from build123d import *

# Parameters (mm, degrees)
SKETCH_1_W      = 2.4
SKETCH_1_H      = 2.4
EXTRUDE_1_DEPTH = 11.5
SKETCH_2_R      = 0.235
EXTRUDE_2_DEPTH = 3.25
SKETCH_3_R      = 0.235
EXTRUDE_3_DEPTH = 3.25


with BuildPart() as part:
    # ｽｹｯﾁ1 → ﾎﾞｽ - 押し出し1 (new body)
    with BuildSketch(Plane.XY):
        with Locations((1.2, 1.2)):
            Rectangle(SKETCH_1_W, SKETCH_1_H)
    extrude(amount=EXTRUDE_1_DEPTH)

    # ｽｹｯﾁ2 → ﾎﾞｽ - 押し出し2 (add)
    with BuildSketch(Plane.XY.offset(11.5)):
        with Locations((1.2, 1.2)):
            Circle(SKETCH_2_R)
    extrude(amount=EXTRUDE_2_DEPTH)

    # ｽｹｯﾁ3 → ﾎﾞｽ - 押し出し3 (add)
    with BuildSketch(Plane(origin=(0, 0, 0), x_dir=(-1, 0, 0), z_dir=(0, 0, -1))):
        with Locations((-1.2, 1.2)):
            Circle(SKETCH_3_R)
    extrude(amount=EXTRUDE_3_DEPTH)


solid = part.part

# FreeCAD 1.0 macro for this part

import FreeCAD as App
import Part
import Sketcher


def add_polygon(sketch, points):
    """Adds a closed chain of lines whose ends are joined by coincident constraints."""
    first, n = sketch.GeometryCount, len(points)
    for a, b in zip(points, points[1:] + points[:1]):
        sketch.addGeometry(Part.LineSegment(App.Vector(*a, 0), App.Vector(*b, 0)), False)
    for i in range(n):
        sketch.addConstraint(Sketcher.Constraint("Coincident", first + i, 2, first + (i + 1) % n, 1))

doc = App.newDocument("Part")
body = doc.addObject("PartDesign::Body", "Body")

sketch1 = body.newObject("Sketcher::SketchObject", "Sketch")
sketch1.AttachmentSupport = (doc.getObject("XY_Plane"), [""])
sketch1.MapMode = "FlatFace"
add_polygon(sketch1, [(0, 2.4), (0, 0), (2.4, 0), (2.4, 2.4)])
sketch1.addConstraint([
    Sketcher.Constraint("Vertical", 0),
    Sketcher.Constraint("Horizontal", 1),
    Sketcher.Constraint("Vertical", 2),
    Sketcher.Constraint("Horizontal", 3),
    Sketcher.Constraint("Coincident", 0, 2, -1, 1),
    Sketcher.Constraint("Equal", 3, 0),
    Sketcher.Constraint("DistanceX", 1, 1, 1, 2, 2.4),
])
pad1 = body.newObject("PartDesign::Pad", "Pad")
pad1.Profile = sketch1
pad1.Length = 11.5

sketch2 = body.newObject("Sketcher::SketchObject", "Sketch001")
sketch2.AttachmentSupport = (doc.getObject("XY_Plane"), [""])
sketch2.MapMode = "FlatFace"
sketch2.AttachmentOffset = App.Placement(App.Vector(0, 0, 11.5), App.Rotation())
sketch2.addGeometry(Part.Circle(App.Vector(1.2, 1.2, 0), App.Vector(0, 0, 1), 0.235), False)
sketch2.addConstraint([
    Sketcher.Constraint("Diameter", 0, 0.47),
    Sketcher.Constraint("DistanceX", -1, 1, 0, 3, 1.2),
    Sketcher.Constraint("DistanceY", -1, 1, 0, 3, 1.2),
])
pad2 = body.newObject("PartDesign::Pad", "Pad001")
pad2.Profile = sketch2
pad2.Length = 3.25

sketch3 = body.newObject("Sketcher::SketchObject", "Sketch002")
sketch3.AttachmentSupport = (doc.getObject("XY_Plane"), [""])
sketch3.MapMode = "FlatFace"
sketch3.addGeometry(Part.Circle(App.Vector(1.2, 1.2, 0), App.Vector(0, 0, 1), 0.235), False)
sketch3.addConstraint([
    Sketcher.Constraint("Diameter", 0, 0.47),
    Sketcher.Constraint("DistanceX", -1, 1, 0, 3, 1.2),
    Sketcher.Constraint("DistanceY", -1, 1, 0, 3, 1.2),
])
pad3 = body.newObject("PartDesign::Pad", "Pad002")
pad3.Profile = sketch3
pad3.Length = 3.25
pad3.Reversed = True

doc.recompute()
